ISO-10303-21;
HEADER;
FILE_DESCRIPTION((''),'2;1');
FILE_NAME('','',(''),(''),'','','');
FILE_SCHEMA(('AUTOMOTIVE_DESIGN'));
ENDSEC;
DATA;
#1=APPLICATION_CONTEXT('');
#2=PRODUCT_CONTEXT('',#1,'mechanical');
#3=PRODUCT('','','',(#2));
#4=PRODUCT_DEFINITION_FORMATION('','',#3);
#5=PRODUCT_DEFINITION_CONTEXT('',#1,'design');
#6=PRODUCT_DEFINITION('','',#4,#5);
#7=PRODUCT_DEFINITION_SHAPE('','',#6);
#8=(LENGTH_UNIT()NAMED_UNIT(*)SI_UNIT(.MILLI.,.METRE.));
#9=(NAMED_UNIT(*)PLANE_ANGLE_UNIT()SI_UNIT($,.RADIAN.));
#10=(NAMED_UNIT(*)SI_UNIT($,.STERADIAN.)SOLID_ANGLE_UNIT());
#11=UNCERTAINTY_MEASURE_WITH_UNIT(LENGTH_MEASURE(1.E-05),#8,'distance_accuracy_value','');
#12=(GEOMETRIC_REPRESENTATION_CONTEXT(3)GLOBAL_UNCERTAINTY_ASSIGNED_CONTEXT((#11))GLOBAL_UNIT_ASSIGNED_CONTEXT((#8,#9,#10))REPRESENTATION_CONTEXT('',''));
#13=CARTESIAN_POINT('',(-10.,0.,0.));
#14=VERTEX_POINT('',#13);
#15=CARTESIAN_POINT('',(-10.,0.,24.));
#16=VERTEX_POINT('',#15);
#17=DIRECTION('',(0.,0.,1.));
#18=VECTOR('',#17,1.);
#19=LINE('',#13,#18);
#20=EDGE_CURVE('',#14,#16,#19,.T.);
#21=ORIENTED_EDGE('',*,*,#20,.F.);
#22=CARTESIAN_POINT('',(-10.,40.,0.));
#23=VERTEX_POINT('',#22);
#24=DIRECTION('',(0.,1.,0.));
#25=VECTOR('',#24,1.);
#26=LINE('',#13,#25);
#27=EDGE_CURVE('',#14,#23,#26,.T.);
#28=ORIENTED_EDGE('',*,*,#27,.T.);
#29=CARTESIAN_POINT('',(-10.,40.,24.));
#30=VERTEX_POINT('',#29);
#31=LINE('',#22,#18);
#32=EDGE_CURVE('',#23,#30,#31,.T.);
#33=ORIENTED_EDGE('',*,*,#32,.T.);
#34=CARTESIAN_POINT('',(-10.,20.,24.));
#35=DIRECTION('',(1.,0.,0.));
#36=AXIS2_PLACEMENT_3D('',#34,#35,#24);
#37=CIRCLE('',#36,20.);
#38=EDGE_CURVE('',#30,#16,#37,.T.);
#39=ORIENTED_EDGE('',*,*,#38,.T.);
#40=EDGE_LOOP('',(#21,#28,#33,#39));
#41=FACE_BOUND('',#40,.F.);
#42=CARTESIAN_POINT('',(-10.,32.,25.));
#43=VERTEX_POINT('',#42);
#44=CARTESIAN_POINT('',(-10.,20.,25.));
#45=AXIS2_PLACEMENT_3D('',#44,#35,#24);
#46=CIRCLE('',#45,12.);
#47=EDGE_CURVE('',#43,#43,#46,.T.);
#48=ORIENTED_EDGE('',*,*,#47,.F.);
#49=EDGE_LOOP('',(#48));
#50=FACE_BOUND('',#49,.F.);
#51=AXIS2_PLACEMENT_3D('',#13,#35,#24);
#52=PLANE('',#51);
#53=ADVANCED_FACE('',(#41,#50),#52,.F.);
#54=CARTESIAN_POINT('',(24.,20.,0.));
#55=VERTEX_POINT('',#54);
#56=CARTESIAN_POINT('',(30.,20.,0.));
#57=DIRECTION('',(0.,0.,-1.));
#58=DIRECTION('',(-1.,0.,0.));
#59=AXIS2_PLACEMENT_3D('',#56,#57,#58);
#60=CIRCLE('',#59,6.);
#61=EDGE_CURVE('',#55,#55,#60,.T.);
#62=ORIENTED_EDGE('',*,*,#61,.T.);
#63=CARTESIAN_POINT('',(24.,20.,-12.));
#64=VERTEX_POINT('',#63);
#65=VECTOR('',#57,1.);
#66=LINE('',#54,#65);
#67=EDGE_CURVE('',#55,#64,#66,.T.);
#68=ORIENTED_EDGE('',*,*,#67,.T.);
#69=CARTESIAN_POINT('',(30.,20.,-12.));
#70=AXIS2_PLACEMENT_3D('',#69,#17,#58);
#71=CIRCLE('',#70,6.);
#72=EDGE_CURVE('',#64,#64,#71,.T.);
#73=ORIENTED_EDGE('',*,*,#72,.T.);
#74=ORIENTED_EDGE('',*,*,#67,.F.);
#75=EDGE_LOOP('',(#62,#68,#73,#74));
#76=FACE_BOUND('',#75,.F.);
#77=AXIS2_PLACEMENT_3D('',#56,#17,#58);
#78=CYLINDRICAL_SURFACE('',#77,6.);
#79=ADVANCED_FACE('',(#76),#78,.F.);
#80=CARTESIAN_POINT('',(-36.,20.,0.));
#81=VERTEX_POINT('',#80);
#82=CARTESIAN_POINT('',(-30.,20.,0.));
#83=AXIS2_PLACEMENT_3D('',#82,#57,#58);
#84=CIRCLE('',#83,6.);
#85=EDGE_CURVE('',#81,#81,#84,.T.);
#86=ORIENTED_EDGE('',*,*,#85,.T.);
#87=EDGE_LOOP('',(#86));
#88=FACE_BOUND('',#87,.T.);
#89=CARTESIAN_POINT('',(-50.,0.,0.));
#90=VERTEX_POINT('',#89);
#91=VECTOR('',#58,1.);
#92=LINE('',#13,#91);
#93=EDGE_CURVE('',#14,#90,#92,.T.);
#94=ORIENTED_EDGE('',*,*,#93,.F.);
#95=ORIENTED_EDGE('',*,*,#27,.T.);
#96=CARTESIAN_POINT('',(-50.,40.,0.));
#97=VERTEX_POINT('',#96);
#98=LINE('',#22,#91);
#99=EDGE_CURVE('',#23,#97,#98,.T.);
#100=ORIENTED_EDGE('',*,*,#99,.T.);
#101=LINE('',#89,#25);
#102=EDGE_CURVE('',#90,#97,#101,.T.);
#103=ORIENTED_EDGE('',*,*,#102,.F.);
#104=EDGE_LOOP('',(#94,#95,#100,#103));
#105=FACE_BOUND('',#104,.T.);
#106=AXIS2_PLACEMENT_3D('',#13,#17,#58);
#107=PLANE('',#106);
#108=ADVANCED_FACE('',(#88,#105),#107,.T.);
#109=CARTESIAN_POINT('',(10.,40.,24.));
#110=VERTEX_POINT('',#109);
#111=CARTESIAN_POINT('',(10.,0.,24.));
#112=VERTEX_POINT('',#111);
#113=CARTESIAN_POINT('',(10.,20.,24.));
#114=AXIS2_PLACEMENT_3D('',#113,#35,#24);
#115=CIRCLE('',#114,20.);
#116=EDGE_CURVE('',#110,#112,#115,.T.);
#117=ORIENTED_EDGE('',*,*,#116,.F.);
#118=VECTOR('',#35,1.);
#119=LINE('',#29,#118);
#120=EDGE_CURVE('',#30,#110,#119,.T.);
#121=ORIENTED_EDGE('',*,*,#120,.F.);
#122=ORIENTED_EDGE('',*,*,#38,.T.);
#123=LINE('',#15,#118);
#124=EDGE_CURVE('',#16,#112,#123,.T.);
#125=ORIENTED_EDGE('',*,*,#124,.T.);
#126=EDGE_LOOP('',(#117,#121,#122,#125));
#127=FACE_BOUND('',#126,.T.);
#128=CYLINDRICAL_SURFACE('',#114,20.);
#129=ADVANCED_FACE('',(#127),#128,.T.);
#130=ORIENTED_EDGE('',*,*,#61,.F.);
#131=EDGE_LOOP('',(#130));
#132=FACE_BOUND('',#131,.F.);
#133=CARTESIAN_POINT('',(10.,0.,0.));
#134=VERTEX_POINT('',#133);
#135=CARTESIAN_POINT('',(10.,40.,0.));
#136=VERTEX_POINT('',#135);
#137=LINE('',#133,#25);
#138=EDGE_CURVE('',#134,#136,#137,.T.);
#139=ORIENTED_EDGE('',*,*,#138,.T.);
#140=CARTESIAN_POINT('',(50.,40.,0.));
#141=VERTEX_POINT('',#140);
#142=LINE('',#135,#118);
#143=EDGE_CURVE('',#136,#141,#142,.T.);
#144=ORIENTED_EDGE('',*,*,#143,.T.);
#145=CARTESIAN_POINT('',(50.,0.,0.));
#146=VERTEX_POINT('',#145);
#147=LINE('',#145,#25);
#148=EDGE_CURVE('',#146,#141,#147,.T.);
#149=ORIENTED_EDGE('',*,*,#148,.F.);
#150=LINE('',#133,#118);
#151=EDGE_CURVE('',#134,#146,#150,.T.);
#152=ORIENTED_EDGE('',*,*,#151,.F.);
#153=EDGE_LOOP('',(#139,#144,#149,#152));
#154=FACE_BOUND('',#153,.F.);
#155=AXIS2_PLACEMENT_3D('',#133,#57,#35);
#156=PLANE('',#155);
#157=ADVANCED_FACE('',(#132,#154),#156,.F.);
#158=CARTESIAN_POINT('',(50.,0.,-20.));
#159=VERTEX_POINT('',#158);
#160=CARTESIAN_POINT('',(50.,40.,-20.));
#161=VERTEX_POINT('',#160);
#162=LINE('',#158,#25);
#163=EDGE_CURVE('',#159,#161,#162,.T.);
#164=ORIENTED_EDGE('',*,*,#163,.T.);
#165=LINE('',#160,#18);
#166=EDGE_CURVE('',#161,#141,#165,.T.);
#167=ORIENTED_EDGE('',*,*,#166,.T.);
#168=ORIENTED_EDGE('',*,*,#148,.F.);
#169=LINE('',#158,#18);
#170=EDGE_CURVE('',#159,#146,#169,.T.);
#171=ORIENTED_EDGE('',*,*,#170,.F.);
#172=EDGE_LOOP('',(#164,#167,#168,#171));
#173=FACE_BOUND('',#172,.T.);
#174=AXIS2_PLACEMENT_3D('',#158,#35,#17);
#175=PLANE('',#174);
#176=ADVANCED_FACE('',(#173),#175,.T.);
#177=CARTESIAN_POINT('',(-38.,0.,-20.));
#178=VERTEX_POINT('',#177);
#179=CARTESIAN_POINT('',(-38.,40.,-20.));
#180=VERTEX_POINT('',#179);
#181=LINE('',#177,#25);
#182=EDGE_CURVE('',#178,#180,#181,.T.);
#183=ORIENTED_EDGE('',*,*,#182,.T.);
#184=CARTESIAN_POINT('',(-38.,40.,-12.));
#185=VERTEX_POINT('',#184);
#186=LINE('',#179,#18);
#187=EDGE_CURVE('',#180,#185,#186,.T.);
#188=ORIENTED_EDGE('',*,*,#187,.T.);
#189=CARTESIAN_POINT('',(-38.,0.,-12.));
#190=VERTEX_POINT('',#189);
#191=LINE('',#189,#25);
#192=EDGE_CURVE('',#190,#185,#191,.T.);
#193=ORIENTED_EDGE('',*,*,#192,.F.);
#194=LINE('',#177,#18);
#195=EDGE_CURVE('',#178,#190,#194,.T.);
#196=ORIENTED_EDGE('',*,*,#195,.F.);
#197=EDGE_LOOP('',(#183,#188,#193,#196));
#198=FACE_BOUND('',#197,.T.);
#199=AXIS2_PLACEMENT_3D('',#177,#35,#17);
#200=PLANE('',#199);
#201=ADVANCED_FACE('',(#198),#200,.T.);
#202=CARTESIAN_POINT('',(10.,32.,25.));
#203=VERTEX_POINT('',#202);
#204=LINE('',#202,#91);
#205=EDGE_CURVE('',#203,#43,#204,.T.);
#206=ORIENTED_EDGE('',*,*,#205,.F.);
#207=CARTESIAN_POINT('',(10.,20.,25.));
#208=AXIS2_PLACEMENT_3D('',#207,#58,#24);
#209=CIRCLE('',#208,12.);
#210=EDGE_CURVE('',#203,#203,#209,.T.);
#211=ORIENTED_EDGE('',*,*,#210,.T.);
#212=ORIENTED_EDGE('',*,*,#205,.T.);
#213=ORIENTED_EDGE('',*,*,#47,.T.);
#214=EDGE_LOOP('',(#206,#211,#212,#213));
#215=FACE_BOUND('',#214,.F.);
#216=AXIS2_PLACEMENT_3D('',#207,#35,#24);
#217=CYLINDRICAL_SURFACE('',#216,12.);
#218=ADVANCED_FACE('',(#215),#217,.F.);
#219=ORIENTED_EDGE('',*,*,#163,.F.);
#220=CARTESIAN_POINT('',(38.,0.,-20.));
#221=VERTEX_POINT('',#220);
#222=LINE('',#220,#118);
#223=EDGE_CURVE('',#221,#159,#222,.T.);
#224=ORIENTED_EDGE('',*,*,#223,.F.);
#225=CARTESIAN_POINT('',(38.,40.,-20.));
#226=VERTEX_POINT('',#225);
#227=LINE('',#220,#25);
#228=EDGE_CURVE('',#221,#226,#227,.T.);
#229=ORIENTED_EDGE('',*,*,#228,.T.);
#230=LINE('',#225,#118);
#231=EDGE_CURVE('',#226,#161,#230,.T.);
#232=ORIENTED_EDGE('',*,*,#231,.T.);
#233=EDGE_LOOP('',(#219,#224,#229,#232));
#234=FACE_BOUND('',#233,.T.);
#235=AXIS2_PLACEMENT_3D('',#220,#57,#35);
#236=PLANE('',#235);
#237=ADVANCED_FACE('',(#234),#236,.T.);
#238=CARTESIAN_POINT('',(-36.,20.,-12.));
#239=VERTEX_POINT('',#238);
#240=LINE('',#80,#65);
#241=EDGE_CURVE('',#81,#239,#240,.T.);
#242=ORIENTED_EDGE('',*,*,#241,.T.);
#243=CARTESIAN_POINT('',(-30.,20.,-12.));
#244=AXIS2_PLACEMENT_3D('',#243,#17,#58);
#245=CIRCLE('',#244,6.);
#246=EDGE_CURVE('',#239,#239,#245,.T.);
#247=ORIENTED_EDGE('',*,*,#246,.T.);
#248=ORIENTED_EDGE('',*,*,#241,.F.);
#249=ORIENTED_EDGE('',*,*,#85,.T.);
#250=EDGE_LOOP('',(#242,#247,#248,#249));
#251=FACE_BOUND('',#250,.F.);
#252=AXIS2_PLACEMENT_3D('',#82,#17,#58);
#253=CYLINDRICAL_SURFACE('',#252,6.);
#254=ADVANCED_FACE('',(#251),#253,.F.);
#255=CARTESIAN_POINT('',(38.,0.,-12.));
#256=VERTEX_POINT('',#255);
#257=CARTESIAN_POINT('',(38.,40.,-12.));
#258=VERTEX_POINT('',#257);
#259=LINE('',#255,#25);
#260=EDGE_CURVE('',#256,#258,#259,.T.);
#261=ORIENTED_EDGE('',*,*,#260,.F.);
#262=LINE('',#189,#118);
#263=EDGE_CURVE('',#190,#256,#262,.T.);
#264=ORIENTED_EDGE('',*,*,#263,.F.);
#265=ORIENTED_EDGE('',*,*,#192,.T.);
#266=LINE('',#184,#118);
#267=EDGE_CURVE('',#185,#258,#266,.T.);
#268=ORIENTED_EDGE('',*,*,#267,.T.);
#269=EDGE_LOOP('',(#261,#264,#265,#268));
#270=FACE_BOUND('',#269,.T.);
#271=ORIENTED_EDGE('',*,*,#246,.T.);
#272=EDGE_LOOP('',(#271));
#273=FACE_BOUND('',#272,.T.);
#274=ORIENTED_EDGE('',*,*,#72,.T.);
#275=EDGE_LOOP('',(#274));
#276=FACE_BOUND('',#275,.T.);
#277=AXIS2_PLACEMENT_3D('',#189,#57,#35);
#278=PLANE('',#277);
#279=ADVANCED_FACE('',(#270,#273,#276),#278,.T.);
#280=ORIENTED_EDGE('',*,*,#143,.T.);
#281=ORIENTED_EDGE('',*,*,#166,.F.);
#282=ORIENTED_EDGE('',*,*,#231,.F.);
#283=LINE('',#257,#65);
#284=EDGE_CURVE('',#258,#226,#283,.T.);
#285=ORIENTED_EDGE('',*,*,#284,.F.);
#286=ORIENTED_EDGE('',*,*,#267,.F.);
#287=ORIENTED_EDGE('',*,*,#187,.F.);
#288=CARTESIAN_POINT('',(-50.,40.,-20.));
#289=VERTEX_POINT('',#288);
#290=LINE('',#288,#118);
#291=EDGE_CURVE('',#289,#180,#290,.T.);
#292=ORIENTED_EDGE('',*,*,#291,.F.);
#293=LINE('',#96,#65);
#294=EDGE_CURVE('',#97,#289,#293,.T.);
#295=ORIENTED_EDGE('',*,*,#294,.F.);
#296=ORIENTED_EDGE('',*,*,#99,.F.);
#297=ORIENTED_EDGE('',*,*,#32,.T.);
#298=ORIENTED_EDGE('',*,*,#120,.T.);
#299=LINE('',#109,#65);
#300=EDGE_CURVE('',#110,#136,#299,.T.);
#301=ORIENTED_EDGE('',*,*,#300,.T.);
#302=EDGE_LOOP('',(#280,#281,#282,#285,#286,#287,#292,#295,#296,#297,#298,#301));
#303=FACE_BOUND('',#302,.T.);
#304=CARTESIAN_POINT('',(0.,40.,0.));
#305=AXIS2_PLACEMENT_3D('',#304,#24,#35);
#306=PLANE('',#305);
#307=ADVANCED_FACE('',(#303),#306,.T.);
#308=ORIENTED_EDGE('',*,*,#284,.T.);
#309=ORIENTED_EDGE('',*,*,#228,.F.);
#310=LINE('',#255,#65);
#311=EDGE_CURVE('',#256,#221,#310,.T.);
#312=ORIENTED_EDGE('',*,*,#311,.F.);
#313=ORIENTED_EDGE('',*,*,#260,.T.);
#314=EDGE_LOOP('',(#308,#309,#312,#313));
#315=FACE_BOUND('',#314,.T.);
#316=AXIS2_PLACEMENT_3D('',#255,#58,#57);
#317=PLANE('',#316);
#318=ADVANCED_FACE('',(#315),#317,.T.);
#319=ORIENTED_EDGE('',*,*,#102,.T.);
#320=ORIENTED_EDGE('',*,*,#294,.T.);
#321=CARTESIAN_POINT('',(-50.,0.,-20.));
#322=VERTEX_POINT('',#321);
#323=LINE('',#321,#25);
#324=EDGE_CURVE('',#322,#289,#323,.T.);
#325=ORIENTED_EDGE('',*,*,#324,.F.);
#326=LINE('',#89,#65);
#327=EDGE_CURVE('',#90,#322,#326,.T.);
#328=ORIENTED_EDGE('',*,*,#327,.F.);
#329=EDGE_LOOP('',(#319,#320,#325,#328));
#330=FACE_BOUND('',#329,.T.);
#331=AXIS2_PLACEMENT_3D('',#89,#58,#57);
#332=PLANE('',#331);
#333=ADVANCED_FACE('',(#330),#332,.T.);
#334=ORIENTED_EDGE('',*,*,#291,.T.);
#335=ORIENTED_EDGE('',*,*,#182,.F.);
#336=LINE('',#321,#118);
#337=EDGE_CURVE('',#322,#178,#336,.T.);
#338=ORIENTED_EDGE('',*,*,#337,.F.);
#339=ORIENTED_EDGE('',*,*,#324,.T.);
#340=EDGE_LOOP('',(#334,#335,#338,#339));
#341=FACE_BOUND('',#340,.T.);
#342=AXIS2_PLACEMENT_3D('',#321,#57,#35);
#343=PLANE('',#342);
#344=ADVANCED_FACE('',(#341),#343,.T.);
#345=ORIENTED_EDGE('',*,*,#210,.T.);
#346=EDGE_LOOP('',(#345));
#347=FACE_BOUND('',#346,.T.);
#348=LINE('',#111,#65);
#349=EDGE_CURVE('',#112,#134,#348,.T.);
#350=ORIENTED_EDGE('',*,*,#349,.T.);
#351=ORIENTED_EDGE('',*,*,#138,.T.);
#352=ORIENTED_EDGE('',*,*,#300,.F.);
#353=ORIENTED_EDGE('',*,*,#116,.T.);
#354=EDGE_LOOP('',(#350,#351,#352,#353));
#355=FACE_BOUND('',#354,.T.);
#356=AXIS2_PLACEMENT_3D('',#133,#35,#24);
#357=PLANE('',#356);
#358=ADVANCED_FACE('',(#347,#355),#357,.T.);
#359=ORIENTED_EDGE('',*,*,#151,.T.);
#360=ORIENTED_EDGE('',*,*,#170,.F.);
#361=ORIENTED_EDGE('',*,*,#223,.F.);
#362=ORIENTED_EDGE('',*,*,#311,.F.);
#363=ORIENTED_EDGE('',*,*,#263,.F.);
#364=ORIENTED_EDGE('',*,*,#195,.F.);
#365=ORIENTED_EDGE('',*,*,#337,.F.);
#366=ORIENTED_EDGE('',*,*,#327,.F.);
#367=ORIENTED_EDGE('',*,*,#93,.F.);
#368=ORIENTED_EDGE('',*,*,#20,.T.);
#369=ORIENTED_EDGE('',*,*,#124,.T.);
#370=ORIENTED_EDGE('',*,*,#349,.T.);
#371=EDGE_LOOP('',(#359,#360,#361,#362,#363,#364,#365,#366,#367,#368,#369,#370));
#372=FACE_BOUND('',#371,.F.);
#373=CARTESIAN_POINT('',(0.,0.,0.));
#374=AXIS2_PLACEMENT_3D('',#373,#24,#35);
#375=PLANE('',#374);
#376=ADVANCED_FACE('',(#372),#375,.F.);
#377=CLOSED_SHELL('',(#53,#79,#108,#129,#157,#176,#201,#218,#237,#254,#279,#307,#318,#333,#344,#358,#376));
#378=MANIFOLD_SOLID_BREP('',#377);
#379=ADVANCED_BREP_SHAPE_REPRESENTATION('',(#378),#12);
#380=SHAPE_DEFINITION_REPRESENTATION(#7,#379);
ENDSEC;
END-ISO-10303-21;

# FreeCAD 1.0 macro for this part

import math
import FreeCAD as App
import Part
import Sketcher
from FreeCAD import Vector
Q = App.Units.Quantity

doc = App.newDocument("Part")
body = doc.addObject("PartDesign::Body", "Body")

# Sketch on XZ plane
sketch1 = body.newObject("Sketcher::SketchObject", "Sketch")
sketch1.AttachmentSupport = (doc.getObject("XZ_Plane"), [""])
sketch1.MapMode = "FlatFace"
sketch1.addGeometry(Part.LineSegment(Vector(10, 24, 0), Vector(10, 0, 0)), False)
sketch1.addGeometry(Part.LineSegment(Vector(10, 0, 0), Vector(50, 0, 0)), False)
sketch1.addGeometry(Part.LineSegment(Vector(50, 0, 0), Vector(50, -20, 0)), False)
sketch1.addGeometry(Part.LineSegment(Vector(50, -20, 0), Vector(38, -20, 0)), False)
sketch1.addGeometry(Part.LineSegment(Vector(38, -20, 0), Vector(38, -12, 0)), False)
sketch1.addGeometry(Part.LineSegment(Vector(38, -12, 0), Vector(-38, -12, 0)), False)
sketch1.addGeometry(Part.LineSegment(Vector(-38, -12, 0), Vector(-38, -20, 0)), False)
sketch1.addGeometry(Part.LineSegment(Vector(-38, -20, 0), Vector(-50, -20, 0)), False)
sketch1.addGeometry(Part.LineSegment(Vector(-50, -20, 0), Vector(-50, 0, 0)), False)
sketch1.addGeometry(Part.LineSegment(Vector(-50, 0, 0), Vector(-10, 0, 0)), False)
sketch1.addGeometry(Part.LineSegment(Vector(-10, 0, 0), Vector(-10, 24, 0)), False)
sketch1.addGeometry(Part.LineSegment(Vector(-10, 24, 0), Vector(10, 24, 0)), False)
sketch1.addConstraint(Sketcher.Constraint("Coincident", 0, 2, 1, 1))
sketch1.addConstraint(Sketcher.Constraint("Coincident", 1, 2, 2, 1))
sketch1.addConstraint(Sketcher.Constraint("Coincident", 2, 2, 3, 1))
sketch1.addConstraint(Sketcher.Constraint("Coincident", 3, 2, 4, 1))
sketch1.addConstraint(Sketcher.Constraint("Coincident", 4, 2, 5, 1))
sketch1.addConstraint(Sketcher.Constraint("Coincident", 5, 2, 6, 1))
sketch1.addConstraint(Sketcher.Constraint("Coincident", 6, 2, 7, 1))
sketch1.addConstraint(Sketcher.Constraint("Coincident", 7, 2, 8, 1))
sketch1.addConstraint(Sketcher.Constraint("Coincident", 8, 2, 9, 1))
sketch1.addConstraint(Sketcher.Constraint("Coincident", 9, 2, 10, 1))
sketch1.addConstraint(Sketcher.Constraint("Coincident", 10, 2, 11, 1))
sketch1.addConstraint(Sketcher.Constraint("Coincident", 11, 2, 0, 1))
sketch1.addConstraint(Sketcher.Constraint("Vertical", 0))
sketch1.addConstraint(Sketcher.Constraint("Horizontal", 1))
sketch1.addConstraint(Sketcher.Constraint("Vertical", 2))
sketch1.addConstraint(Sketcher.Constraint("Horizontal", 3))
sketch1.addConstraint(Sketcher.Constraint("Vertical", 4))
sketch1.addConstraint(Sketcher.Constraint("Horizontal", 5))
sketch1.addConstraint(Sketcher.Constraint("Vertical", 6))
sketch1.addConstraint(Sketcher.Constraint("Horizontal", 7))
sketch1.addConstraint(Sketcher.Constraint("Vertical", 8))
sketch1.addConstraint(Sketcher.Constraint("Horizontal", 9))
sketch1.addConstraint(Sketcher.Constraint("Vertical", 10))
sketch1.addConstraint(Sketcher.Constraint("Horizontal", 11))
sketch1.addConstraint(Sketcher.Constraint("Symmetric", 1, 2, 8, 2, -1, 1))
sketch1.addConstraint(Sketcher.Constraint("Symmetric", 3, 2, 6, 2, -2))
sketch1.addConstraint(Sketcher.Constraint("Symmetric", 0, 2, 9, 2, -2))
sketch1.addConstraint(Sketcher.Constraint("Equal", 11, 2))
sketch1.addConstraint(Sketcher.Constraint("DistanceX", 1, 1, 1, 2, Q("40 mm")))
sketch1.addConstraint(Sketcher.Constraint("DistanceX", 3, 2, 3, 1, Q("12 mm")))
sketch1.addConstraint(Sketcher.Constraint("DistanceX", 5, 2, 5, 1, Q("76 mm")))
sketch1.addConstraint(Sketcher.Constraint("DistanceY", 0, 2, 0, 1, Q("24 mm")))
sketch1.addConstraint(Sketcher.Constraint("DistanceY", 4, 1, 4, 2, Q("8 mm")))
pad1 = body.newObject("PartDesign::Pad", "Pad")
pad1.Profile = sketch1
pad1.Length = 40
pad1.Reversed = True

# Sketch on XY plane
sketch2 = body.newObject("Sketcher::SketchObject", "Sketch001")
sketch2.AttachmentSupport = (doc.getObject("XY_Plane"), [""])
sketch2.MapMode = "FlatFace"
sketch2.addGeometry(Part.Circle(Vector(30, 20, 0), Vector(0, 0, 1), 6), False)
sketch2.addConstraint(Sketcher.Constraint("Diameter", 0, Q("12 mm")))
sketch2.addConstraint(Sketcher.Constraint("DistanceY", -1, 1, 0, 3, Q("20 mm")))
sketch2.addConstraint(Sketcher.Constraint("DistanceX", -1, 1, 0, 3, Q("30 mm")))
pocket1 = body.newObject("PartDesign::Pocket", "Pocket")
pocket1.Profile = sketch2
pocket1.Length = 20

# Sketch on XY plane
sketch3 = body.newObject("Sketcher::SketchObject", "Sketch002")
sketch3.AttachmentSupport = (doc.getObject("XY_Plane"), [""])
sketch3.MapMode = "FlatFace"
sketch3.addGeometry(Part.Circle(Vector(-30, 20, 0), Vector(0, 0, 1), 6), False)
sketch3.addConstraint(Sketcher.Constraint("Diameter", 0, Q("12 mm")))
sketch3.addConstraint(Sketcher.Constraint("DistanceX", 0, 3, -1, 1, Q("30 mm")))
sketch3.addConstraint(Sketcher.Constraint("DistanceY", -1, 1, 0, 3, Q("20 mm")))
pocket2 = body.newObject("PartDesign::Pocket", "Pocket001")
pocket2.Profile = sketch3
pocket2.Length = 20

# Sketch on YZ plane
sketch4 = body.newObject("Sketcher::SketchObject", "Sketch003")
sketch4.AttachmentSupport = (doc.getObject("YZ_Plane"), [""])
sketch4.MapMode = "FlatFace"
sketch4.AttachmentOffset = App.Placement(Vector(0, 0, 10), App.Rotation())
sketch4.addGeometry(Part.ArcOfCircle(Part.Circle(Vector(20, 24, 0), Vector(0, 0, 1), 20), math.radians(0), math.radians(180)), False)
sketch4.addGeometry(Part.LineSegment(Vector(0, 24, 0), Vector(40, 24, 0)), False)
sketch4.addConstraint(Sketcher.Constraint("Coincident", 0, 1, 1, 2))
sketch4.addConstraint(Sketcher.Constraint("Coincident", 1, 1, 0, 2))
sketch4.addConstraint(Sketcher.Constraint("Horizontal", 1))
sketch4.addConstraint(Sketcher.Constraint("PointOnObject", 1, 1, -2))
sketch4.addConstraint(Sketcher.Constraint("Radius", 0, Q("20 mm")))
sketch4.addConstraint(Sketcher.Constraint("DistanceY", -1, 1, 0, 3, Q("24 mm")))
sketch4.addConstraint(Sketcher.Constraint("DistanceY", -1, 1, 0, 1, Q("24 mm")))
pad2 = body.newObject("PartDesign::Pad", "Pad001")
pad2.Profile = sketch4
pad2.Length = 20
pad2.Reversed = True

# Sketch on YZ plane
sketch5 = body.newObject("Sketcher::SketchObject", "Sketch004")
sketch5.AttachmentSupport = (doc.getObject("YZ_Plane"), [""])
sketch5.MapMode = "FlatFace"
sketch5.AttachmentOffset = App.Placement(Vector(0, 0, 10), App.Rotation())
sketch5.addGeometry(Part.Circle(Vector(20, 25, 0), Vector(0, 0, 1), 12), False)
sketch5.addConstraint(Sketcher.Constraint("Diameter", 0, Q("24 mm")))
sketch5.addConstraint(Sketcher.Constraint("DistanceX", -1, 1, 0, 3, Q("20 mm")))
sketch5.addConstraint(Sketcher.Constraint("DistanceY", -1, 1, 0, 3, Q("25 mm")))
pocket3 = body.newObject("PartDesign::Pocket", "Pocket002")
pocket3.Profile = sketch5
pocket3.Length = 20

doc.recompute()
